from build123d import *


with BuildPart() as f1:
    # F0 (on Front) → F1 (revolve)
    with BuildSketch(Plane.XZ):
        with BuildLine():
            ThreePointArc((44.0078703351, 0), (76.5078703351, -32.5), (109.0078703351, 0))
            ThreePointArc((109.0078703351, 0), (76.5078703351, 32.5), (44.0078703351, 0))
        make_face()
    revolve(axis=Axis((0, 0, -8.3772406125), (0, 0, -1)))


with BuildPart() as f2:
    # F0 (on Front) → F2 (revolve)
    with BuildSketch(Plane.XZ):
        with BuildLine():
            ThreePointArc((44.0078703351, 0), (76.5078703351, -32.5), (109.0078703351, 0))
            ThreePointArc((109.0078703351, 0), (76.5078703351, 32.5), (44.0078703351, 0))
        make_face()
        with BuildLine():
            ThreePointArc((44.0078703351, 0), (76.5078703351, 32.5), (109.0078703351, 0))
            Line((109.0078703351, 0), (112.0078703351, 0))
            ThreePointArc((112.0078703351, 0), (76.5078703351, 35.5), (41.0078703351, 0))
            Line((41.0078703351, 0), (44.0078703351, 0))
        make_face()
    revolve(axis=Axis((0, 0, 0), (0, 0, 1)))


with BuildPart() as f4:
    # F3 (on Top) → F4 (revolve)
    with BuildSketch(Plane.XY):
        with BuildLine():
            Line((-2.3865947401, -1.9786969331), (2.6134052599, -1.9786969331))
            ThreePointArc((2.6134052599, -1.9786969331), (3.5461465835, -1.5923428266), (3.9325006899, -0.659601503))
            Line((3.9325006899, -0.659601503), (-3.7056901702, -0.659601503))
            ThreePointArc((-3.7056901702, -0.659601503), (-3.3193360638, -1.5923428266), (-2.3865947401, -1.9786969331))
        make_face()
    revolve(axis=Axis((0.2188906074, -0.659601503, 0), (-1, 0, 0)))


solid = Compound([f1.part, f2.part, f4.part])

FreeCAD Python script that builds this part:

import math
import FreeCAD as App
import Part
import Sketcher
Q = App.Units.Quantity

doc = App.newDocument("Part")
params = doc.addObject("Spreadsheet::Sheet", "Params")
for row, (alias, value) in enumerate([
    ("sketch1_diameter", "65 mm"),
    ("revolution_angle", "360 deg"),
    ("sketch2_radius", "32.5 mm"),
    ("sketch2_radius2", "35.5 mm"),
    ("revolution2_angle", "360 deg"),
    ("sketch3_width", "5 mm"),
    ("revolution3_angle", "360 deg"),
], start=1):
    params.set(f"A{row}", alias)
    params.set(f"B{row}", "=" + value)
    params.setAlias(f"B{row}", alias)

body = doc.addObject("PartDesign::Body", "Body")

# Sketch on XZ plane
sketch1 = doc.addObject("Sketcher::SketchObject", "Sketch")
body.addObject(sketch1)
sketch1.AttachmentSupport = (doc.XZ_Plane, [""])
sketch1.MapMode = "FlatFace"
sketch1.addGeometry(Part.Circle(App.Vector(77, 0, 0), App.Vector(0, 0, 1), 32), False)
sketch1.addConstraint(Sketcher.Constraint("PointOnObject", 0, 3, -1))
sketch1.addConstraint(Sketcher.Constraint("Diameter", 0, Q("65 mm")))
sketch1.addConstraint(Sketcher.Constraint("DistanceX", -1, 1, 0, 3, Q("76.50787 mm")))
sketch1.setExpression("Constraints[1]", "Params.sketch1_diameter")
revolution = doc.addObject("PartDesign::Revolution", "Revolution")
body.addObject(revolution)
revolution.Profile = sketch1
revolution.ReferenceAxis = (sketch1, ["V_Axis"])
revolution.setExpression("Angle", "Params.revolution_angle")
body2 = doc.addObject("PartDesign::Body", "Body001")

# Sketch on XZ plane
sketch2 = doc.addObject("Sketcher::SketchObject", "Sketch001")
body2.addObject(sketch2)
sketch2.AttachmentSupport = (doc.getObject("XZ_Plane001"), [""])
sketch2.MapMode = "FlatFace"
sketch2.addGeometry(Part.ArcOfCircle(Part.Circle(App.Vector(76.5, 0, 0), App.Vector(0, 0, 1), 32.5), math.radians(180), math.radians(360)), False)
sketch2.addGeometry(Part.LineSegment(App.Vector(109, 0, 0), App.Vector(112, 0, 0)), False)
sketch2.addGeometry(Part.ArcOfCircle(Part.Circle(App.Vector(76.5, 0, 0), App.Vector(0, 0, 1), 35.5), math.radians(0), math.radians(180)), False)
sketch2.addGeometry(Part.LineSegment(App.Vector(41, 0, 0), App.Vector(44, 0, 0)), False)
sketch2.addConstraint(Sketcher.Constraint("Coincident", 0, 2, 1, 1))
sketch2.addConstraint(Sketcher.Constraint("Coincident", 1, 2, 2, 1))
sketch2.addConstraint(Sketcher.Constraint("Coincident", 2, 2, 3, 1))
sketch2.addConstraint(Sketcher.Constraint("Coincident", 3, 2, 0, 1))
sketch2.addConstraint(Sketcher.Constraint("Horizontal", 1))
sketch2.addConstraint(Sketcher.Constraint("Horizontal", 3))
sketch2.addConstraint(Sketcher.Constraint("Coincident", 2, 3, 0, 3))
sketch2.addConstraint(Sketcher.Constraint("PointOnObject", 0, 3, -1))
sketch2.addConstraint(Sketcher.Constraint("PointOnObject", 0, 2, -1))
sketch2.addConstraint(Sketcher.Constraint("PointOnObject", 2, 2, -1))
sketch2.addConstraint(Sketcher.Constraint("Radius", 0, Q("32.5 mm")))
sketch2.addConstraint(Sketcher.Constraint("Radius", 2, Q("35.5 mm")))
sketch2.addConstraint(Sketcher.Constraint("DistanceX", -1, 1, 0, 3, Q("76.50787 mm")))
sketch2.setExpression("Constraints[10]", "Params.sketch2_radius")
sketch2.setExpression("Constraints[11]", "Params.sketch2_radius2")
revolution2 = doc.addObject("PartDesign::Revolution", "Revolution001")
body2.addObject(revolution2)
revolution2.Profile = sketch2
revolution2.ReferenceAxis = (sketch2, ["V_Axis"])
revolution2.setExpression("Angle", "Params.revolution2_angle")
body3 = doc.addObject("PartDesign::Body", "Body002")

# Sketch on XY plane
sketch3 = doc.addObject("Sketcher::SketchObject", "Sketch002")
body3.addObject(sketch3)
sketch3.AttachmentSupport = (doc.getObject("XY_Plane002"), [""])
sketch3.MapMode = "FlatFace"
sketch3.addGeometry(Part.LineSegment(App.Vector(-2.4, -2, 0), App.Vector(2.6, -2, 0)), False)
sketch3.addGeometry(Part.ArcOfCircle(Part.Circle(App.Vector(2.6, -0.7, 0), App.Vector(0, 0, 1), 1.3), math.radians(-90), math.radians(0)), False)
sketch3.addGeometry(Part.LineSegment(App.Vector(3.9, -0.7, 0), App.Vector(-3.7, -0.7, 0)), False)
sketch3.addGeometry(Part.ArcOfCircle(Part.Circle(App.Vector(-2.4, -0.7, 0), App.Vector(0, 0, 1), 1.3), math.radians(180), math.radians(270)), False)
sketch3.addGeometry(Part.LineSegment(App.Vector(3.9, -0.7, 0), App.Vector(-3.7, -0.7, 0)), True)  # axis
sketch3.addConstraint(Sketcher.Constraint("Tangent", 0, 2, 1, 1))
sketch3.addConstraint(Sketcher.Constraint("Coincident", 1, 2, 2, 1))
sketch3.addConstraint(Sketcher.Constraint("Coincident", 2, 2, 3, 1))
sketch3.addConstraint(Sketcher.Constraint("Tangent", 3, 2, 0, 1))
sketch3.addConstraint(Sketcher.Constraint("Horizontal", 0))
sketch3.addConstraint(Sketcher.Constraint("Horizontal", 2))
sketch3.addConstraint(Sketcher.Constraint("Horizontal", 4))
sketch3.addConstraint(Sketcher.Constraint("Coincident", 4, 1, 1, 2))
sketch3.addConstraint(Sketcher.Constraint("Equal", 1, 3))
sketch3.addConstraint(Sketcher.Constraint("Horizontal", 3, 3, 1, 2))
sketch3.addConstraint(Sketcher.Constraint("Equal", 2, 4))
sketch3.addConstraint(Sketcher.Constraint("DistanceX", 0, 1, 0, 2, Q("5 mm")))
sketch3.addConstraint(Sketcher.Constraint("Radius", 1, Q("1.319095 mm")))
sketch3.addConstraint(Sketcher.Constraint("DistanceY", 1, 3, -1, 1, Q("0.659602 mm")))
sketch3.addConstraint(Sketcher.Constraint("DistanceX", -1, 1, 1, 2, Q("3.932501 mm")))
sketch3.setExpression("Constraints[11]", "Params.sketch3_width")
revolution3 = doc.addObject("PartDesign::Revolution", "Revolution002")
body3.addObject(revolution3)
revolution3.Profile = sketch3
revolution3.ReferenceAxis = (sketch3, ["Axis0"])
revolution3.setExpression("Angle", "Params.revolution3_angle")

doc.recompute()
